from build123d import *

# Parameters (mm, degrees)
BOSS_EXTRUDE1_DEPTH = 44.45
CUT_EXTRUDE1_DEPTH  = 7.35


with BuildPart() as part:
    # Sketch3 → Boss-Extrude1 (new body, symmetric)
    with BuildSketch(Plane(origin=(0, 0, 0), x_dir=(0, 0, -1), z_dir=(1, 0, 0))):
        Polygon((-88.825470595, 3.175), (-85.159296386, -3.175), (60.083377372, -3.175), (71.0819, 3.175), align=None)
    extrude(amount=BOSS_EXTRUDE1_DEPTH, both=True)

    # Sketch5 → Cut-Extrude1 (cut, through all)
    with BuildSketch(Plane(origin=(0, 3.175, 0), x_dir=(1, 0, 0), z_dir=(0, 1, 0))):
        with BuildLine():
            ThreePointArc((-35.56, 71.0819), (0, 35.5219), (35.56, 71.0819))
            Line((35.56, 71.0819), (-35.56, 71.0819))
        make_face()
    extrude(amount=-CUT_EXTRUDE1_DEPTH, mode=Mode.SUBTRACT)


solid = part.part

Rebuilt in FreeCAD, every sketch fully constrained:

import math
import FreeCAD as App
import Part
import Sketcher

V = App.Vector
Q = App.Units.Quantity

doc = App.newDocument("Part")
body = doc.addObject("PartDesign::Body", "Body")

sketch1 = body.newObject("Sketcher::SketchObject", "Sketch")
sketch1.AttachmentSupport = (doc.getObject("YZ_Plane"), [""])
sketch1.MapMode = "FlatFace"
sketch1.addGeometry([
    Part.LineSegment(V(3.175, 88.825471, 0), V(-3.175, 85.159296, 0)),
    Part.LineSegment(V(-3.175, 85.159296, 0), V(-3.175, -60.083377, 0)),
    Part.LineSegment(V(-3.175, -60.083377, 0), V(3.175, -71.0819, 0)),
    Part.LineSegment(V(3.175, -71.0819, 0), V(3.175, 88.825471, 0)),
], False)
sketch1.addConstraint([
    Sketcher.Constraint("Coincident", 0, 2, 1, 1),
    Sketcher.Constraint("Coincident", 1, 2, 2, 1),
    Sketcher.Constraint("Coincident", 2, 2, 3, 1),
    Sketcher.Constraint("Coincident", 3, 2, 0, 1),
    Sketcher.Constraint("Vertical", 1),
    Sketcher.Constraint("Vertical", 3),
    Sketcher.Constraint("Perpendicular", 0, 2),
    Sketcher.Constraint("Angle", 0, Q("-150 deg")),
    Sketcher.Constraint("Distance", 2, Q("0.5 in")),
    Sketcher.Constraint("DistanceX", 0, 2, -1, 1, Q("0.125 in")),
    Sketcher.Constraint("DistanceY", 2, 2, -1, 1, Q("2.7985 in")),
    Sketcher.Constraint("DistanceY", 3, 1, 3, 2, Q("159.907371 mm")),
])
pad1 = body.newObject("PartDesign::Pad", "Pad")
pad1.Profile = sketch1
pad1.Length = Q("3.5 in")
pad1.Midplane = True

sketch2 = body.newObject("Sketcher::SketchObject", "Sketch001")
sketch2.AttachmentSupport = (doc.getObject("XZ_Plane"), [""])
sketch2.MapMode = "FlatFace"
sketch2.AttachmentOffset = App.Placement(V(0, 0, -0.125 * 25.4), App.Rotation())
sketch2.addGeometry([
    Part.ArcOfCircle(Part.Circle(V(0, -71.0819, 0), V(0, 0, 1), 35.56), math.radians(0), math.radians(180)),
    Part.LineSegment(V(35.56, -71.0819, 0), V(-35.56, -71.0819, 0)),
], False)
sketch2.addConstraint([
    Sketcher.Constraint("Coincident", 0, 1, 1, 1),
    Sketcher.Constraint("Coincident", 1, 2, 0, 2),
    Sketcher.Constraint("Horizontal", 1),
    Sketcher.Constraint("PointOnObject", 0, 3, -2),
    Sketcher.Constraint("Radius", 0, Q("1.4 in")),
    Sketcher.Constraint("DistanceY", 0, 3, -1, 1, Q("2.7985 in")),
    Sketcher.Constraint("DistanceY", 0, 1, -1, 1, Q("2.7985 in")),
])
pocket1 = body.newObject("PartDesign::Pocket", "Pocket")
pocket1.Profile = sketch2
pocket1.Type = "ThroughAll"
pocket1.Reversed = True

doc.recompute()
